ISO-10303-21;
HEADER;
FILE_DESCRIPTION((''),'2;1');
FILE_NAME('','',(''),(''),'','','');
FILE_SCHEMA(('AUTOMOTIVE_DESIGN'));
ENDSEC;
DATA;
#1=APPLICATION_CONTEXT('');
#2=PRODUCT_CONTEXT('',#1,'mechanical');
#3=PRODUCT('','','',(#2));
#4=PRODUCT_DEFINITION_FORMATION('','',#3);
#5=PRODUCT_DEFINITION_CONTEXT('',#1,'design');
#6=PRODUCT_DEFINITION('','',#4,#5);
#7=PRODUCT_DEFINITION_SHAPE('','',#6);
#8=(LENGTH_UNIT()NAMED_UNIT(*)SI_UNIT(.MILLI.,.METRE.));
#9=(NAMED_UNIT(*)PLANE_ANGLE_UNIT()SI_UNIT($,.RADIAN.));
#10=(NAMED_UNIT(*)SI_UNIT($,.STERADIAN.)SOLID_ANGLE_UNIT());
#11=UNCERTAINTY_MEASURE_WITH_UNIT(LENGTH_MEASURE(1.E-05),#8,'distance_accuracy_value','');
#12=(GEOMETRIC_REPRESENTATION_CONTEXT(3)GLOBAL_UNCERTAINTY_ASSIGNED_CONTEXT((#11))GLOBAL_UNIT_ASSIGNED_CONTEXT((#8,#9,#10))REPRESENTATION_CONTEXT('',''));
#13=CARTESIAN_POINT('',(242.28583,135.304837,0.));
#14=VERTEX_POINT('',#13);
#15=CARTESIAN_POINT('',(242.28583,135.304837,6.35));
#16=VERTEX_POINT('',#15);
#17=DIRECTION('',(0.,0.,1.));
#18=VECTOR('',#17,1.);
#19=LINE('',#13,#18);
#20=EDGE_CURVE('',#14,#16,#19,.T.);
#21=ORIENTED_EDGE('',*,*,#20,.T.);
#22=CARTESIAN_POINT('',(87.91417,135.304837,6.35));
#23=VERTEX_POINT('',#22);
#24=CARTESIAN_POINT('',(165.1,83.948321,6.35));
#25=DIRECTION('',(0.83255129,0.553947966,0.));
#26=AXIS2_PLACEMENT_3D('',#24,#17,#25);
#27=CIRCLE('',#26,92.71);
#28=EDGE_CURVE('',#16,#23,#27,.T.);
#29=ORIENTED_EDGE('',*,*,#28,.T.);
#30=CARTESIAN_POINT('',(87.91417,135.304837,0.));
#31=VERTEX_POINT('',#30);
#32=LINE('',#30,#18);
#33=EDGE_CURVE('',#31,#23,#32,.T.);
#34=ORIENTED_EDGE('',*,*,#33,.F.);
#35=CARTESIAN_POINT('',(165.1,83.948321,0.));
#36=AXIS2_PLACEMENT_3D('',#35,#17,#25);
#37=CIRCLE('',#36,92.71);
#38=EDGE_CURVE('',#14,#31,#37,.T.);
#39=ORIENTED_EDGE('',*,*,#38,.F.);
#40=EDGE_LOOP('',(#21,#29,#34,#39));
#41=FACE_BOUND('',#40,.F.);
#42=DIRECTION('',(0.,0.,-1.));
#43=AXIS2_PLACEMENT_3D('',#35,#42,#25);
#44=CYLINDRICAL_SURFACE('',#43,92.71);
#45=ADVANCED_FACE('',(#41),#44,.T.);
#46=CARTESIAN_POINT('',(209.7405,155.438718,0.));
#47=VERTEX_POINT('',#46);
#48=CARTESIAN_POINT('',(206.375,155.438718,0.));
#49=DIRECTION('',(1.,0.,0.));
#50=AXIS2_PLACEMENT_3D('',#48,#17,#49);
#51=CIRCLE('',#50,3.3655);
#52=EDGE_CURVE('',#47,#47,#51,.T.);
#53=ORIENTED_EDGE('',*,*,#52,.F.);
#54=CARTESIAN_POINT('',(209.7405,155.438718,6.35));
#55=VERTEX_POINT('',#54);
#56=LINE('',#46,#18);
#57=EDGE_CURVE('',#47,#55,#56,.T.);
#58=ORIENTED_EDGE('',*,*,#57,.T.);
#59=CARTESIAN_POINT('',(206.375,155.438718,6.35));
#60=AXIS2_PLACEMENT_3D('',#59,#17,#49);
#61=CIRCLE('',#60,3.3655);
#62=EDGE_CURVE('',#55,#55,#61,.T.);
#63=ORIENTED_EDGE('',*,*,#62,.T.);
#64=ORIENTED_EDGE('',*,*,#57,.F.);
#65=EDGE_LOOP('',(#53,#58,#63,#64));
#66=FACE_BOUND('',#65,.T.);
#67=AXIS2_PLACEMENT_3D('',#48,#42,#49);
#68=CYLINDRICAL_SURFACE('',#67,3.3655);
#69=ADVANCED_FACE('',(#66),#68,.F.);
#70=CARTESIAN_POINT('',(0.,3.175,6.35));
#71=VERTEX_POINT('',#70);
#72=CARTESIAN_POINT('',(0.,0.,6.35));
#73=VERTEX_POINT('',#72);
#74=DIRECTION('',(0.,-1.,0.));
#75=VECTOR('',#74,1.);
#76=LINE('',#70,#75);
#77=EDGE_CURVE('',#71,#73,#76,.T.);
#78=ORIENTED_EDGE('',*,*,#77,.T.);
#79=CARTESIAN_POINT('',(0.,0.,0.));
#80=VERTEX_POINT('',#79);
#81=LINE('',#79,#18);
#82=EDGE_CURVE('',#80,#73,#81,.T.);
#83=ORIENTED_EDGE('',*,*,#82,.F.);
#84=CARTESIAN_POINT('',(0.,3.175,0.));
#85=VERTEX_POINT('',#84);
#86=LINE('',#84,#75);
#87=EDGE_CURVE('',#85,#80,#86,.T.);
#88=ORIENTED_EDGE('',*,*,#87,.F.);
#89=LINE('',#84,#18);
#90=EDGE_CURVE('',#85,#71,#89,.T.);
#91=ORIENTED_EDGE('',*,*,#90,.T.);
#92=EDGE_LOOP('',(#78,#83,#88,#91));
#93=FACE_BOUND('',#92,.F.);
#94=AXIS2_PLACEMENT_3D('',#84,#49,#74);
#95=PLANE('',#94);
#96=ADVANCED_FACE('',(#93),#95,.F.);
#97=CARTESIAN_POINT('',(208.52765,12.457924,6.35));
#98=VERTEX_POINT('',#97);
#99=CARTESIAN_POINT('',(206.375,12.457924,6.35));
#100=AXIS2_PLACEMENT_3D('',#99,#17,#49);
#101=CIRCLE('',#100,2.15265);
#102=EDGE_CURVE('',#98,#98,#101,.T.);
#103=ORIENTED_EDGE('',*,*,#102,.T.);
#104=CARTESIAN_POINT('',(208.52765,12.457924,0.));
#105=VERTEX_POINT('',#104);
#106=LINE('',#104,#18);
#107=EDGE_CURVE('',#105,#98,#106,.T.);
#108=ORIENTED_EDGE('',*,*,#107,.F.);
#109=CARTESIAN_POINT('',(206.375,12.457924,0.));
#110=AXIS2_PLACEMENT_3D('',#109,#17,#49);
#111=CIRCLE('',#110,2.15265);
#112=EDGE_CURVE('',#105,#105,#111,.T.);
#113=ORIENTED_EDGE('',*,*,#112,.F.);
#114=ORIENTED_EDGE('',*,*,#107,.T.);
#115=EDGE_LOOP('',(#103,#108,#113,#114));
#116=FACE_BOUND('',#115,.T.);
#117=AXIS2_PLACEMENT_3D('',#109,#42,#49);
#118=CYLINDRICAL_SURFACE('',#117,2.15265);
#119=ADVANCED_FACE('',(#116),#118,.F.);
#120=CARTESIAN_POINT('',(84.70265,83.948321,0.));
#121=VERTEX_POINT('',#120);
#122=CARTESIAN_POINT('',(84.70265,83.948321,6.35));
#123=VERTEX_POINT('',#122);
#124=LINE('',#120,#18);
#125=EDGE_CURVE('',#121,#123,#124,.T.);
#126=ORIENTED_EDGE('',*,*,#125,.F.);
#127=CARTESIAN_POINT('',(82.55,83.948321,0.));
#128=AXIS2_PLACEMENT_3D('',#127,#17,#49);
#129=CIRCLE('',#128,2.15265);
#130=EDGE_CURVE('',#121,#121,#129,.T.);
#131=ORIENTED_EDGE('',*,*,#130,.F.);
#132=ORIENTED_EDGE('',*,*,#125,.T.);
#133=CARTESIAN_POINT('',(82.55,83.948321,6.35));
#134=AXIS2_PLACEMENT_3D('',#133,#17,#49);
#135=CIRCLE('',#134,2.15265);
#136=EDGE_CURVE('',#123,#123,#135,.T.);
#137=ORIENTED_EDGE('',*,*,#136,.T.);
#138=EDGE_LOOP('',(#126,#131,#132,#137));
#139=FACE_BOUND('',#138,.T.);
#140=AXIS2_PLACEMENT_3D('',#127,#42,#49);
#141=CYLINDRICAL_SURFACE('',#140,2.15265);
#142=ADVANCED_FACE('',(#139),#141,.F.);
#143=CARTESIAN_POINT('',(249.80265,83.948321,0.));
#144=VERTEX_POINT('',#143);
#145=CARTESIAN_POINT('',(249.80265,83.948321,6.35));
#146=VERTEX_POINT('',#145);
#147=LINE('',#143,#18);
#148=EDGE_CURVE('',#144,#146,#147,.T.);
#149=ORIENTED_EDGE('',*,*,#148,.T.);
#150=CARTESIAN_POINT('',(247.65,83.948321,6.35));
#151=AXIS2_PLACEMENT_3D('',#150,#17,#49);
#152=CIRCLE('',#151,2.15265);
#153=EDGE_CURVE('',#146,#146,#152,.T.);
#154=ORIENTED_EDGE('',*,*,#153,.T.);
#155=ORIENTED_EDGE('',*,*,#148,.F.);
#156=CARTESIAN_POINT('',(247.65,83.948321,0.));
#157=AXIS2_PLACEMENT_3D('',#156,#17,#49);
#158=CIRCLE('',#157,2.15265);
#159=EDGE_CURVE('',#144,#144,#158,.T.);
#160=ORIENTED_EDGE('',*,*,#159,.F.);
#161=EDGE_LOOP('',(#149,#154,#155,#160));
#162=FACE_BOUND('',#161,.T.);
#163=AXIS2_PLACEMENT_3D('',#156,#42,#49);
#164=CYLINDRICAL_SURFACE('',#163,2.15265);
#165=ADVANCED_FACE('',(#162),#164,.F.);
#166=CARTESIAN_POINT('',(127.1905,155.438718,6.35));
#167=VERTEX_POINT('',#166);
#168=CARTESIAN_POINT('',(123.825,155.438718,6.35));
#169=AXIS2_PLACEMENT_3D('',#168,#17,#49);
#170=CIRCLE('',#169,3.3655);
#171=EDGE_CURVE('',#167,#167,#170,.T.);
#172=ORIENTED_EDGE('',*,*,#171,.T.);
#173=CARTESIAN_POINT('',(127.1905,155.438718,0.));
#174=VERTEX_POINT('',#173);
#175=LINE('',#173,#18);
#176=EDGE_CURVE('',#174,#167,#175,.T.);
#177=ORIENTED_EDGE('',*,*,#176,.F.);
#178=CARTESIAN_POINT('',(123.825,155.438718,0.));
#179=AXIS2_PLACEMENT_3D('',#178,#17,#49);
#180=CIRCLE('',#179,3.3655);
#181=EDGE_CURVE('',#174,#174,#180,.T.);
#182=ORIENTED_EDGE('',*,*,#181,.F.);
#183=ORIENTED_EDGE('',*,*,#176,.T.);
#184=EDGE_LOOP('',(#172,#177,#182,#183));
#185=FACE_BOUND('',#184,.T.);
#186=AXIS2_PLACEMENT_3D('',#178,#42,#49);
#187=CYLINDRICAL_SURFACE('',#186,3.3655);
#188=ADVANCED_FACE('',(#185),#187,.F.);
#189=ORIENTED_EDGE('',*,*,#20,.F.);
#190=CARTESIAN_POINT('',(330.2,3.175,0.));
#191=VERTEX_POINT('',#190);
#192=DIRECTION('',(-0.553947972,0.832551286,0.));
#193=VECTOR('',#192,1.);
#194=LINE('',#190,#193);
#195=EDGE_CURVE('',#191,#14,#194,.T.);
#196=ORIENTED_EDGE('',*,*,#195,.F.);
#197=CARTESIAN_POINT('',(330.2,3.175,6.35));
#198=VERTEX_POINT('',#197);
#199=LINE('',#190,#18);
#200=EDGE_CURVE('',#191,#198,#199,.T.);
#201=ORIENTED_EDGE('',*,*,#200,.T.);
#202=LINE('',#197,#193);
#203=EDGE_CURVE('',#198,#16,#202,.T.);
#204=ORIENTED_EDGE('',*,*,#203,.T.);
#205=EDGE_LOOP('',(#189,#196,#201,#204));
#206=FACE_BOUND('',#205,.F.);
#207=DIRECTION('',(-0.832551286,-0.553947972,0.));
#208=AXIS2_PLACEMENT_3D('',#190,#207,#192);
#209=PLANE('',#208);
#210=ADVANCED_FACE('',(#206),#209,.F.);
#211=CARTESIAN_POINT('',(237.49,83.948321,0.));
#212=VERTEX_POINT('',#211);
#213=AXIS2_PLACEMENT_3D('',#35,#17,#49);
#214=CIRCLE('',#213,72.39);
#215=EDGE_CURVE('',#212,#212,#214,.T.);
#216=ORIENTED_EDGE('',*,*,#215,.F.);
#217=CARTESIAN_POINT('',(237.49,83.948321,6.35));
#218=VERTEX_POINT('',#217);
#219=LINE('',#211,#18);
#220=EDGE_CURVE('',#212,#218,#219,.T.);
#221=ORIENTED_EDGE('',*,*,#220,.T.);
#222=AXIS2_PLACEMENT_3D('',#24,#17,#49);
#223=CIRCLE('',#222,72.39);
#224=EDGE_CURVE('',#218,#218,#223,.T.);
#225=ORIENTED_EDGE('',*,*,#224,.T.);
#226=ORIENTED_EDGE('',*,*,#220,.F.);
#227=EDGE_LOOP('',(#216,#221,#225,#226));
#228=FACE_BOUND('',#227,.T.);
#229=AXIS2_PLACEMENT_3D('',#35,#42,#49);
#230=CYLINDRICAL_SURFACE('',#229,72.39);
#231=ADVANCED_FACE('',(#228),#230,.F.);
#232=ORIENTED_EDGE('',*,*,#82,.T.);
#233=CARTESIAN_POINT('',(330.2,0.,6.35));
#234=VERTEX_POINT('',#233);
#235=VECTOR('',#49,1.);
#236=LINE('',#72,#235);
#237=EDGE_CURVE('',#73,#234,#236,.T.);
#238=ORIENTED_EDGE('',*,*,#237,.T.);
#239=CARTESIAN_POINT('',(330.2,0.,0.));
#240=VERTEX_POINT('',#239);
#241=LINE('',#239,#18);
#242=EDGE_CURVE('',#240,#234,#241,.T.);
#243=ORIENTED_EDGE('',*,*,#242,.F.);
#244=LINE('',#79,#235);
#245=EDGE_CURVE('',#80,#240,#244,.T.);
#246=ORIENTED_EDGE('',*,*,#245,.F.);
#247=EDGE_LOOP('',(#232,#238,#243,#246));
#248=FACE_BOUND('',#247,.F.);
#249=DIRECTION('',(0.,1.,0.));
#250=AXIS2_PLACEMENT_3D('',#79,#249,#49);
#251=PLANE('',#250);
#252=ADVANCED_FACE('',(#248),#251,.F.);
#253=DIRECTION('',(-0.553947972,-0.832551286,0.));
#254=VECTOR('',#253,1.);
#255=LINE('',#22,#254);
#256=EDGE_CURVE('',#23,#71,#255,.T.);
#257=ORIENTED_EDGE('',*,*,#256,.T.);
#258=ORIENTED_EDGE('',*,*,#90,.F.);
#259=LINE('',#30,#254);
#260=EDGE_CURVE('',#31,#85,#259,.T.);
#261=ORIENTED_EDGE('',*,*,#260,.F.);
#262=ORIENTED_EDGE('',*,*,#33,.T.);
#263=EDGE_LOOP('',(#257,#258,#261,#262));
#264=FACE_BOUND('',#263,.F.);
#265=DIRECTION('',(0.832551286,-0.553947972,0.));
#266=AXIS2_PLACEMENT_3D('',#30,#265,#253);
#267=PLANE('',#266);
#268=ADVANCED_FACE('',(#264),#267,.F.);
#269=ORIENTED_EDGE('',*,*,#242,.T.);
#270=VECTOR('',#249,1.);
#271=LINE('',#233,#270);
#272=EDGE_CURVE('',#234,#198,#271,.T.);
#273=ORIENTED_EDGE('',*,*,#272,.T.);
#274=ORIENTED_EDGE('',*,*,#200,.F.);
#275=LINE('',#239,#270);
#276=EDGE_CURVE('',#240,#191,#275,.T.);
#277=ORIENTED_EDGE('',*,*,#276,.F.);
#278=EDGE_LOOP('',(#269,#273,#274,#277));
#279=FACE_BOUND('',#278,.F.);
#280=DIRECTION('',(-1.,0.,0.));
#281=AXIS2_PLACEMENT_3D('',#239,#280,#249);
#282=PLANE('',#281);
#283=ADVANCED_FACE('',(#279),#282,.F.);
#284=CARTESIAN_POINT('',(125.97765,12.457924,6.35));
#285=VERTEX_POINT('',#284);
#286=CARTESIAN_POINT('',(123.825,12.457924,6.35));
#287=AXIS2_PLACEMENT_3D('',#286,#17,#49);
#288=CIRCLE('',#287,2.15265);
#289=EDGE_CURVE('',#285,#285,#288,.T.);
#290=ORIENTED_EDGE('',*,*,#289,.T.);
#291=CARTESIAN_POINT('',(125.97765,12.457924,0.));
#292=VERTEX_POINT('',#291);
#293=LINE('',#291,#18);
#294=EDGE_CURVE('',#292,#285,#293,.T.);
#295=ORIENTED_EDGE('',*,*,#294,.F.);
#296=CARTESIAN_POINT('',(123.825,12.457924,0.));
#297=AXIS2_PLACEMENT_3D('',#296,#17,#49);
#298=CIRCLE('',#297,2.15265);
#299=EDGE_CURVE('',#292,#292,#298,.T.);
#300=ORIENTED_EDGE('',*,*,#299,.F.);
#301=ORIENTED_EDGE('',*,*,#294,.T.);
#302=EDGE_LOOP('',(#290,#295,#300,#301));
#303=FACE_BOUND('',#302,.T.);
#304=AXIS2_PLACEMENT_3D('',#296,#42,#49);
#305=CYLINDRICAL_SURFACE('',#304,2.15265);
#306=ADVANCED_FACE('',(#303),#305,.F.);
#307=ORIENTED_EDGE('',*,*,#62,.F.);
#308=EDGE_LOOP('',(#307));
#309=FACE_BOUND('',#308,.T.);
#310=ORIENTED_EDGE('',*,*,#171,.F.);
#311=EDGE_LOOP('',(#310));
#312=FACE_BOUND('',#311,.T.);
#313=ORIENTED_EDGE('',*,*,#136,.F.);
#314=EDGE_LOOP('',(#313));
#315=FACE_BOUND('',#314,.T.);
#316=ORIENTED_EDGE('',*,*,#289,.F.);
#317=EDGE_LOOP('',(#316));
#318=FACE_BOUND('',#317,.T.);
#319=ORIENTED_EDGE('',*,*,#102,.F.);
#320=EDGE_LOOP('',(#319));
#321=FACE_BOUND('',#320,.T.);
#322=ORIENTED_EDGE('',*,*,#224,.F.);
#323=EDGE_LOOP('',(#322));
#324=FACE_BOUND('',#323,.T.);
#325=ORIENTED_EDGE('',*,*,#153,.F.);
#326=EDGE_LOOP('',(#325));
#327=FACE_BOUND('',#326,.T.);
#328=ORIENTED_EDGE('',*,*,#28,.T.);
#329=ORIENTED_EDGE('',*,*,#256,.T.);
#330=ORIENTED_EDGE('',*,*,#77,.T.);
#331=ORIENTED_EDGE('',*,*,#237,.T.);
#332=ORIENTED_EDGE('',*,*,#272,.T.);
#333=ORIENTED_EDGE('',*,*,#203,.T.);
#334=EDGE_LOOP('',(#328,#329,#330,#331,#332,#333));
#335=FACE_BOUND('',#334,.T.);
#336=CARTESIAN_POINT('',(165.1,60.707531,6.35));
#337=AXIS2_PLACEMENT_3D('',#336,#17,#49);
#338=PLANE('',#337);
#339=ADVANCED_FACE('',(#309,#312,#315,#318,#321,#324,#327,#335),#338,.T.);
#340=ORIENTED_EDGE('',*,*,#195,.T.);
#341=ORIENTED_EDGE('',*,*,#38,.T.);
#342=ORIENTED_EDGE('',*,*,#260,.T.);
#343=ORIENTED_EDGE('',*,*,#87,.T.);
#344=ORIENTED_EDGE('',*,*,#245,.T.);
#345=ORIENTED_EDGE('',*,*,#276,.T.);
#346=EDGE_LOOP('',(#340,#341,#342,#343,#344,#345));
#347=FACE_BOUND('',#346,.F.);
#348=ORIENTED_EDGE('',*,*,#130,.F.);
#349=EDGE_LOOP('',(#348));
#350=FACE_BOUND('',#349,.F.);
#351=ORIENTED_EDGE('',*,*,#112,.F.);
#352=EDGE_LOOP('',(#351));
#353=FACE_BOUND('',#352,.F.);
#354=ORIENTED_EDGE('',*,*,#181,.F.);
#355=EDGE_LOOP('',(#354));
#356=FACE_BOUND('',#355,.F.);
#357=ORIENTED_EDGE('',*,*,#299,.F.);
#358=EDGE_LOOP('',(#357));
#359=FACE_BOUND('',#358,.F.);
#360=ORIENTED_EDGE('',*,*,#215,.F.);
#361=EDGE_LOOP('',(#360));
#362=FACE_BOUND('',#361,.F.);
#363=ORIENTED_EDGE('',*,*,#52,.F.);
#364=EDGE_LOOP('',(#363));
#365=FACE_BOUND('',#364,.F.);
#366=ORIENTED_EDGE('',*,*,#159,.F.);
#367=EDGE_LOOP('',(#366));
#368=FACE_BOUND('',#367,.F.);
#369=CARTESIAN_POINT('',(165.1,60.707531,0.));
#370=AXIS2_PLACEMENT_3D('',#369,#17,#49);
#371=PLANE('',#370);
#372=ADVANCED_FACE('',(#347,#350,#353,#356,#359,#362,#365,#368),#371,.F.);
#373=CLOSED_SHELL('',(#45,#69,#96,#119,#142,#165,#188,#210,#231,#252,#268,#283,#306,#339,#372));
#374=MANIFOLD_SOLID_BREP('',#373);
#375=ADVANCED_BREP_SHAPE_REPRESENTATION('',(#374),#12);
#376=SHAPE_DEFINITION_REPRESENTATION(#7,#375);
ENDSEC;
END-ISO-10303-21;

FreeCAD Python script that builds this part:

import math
import FreeCAD as App
import Part
import Sketcher
from FreeCAD import Vector
Q = App.Units.Quantity

doc = App.newDocument("Part")
body = doc.addObject("PartDesign::Body", "Body")

sketch1 = body.newObject("Sketcher::SketchObject", "Sketch")
sketch1.AttachmentSupport = (doc.getObject("XY_Plane"), [""])
sketch1.MapMode = "FlatFace"
sketch1.addGeometry([
    Part.LineSegment(Vector(0, 3.2, 0), Vector(0, 0, 0)),
    Part.LineSegment(Vector(0, 0, 0), Vector(330.2, 0, 0)),
    Part.LineSegment(Vector(330.2, 0, 0), Vector(330.2, 3.2, 0)),
    Part.LineSegment(Vector(330.2, 3.2, 0), Vector(242.3, 135.3, 0)),
    Part.ArcOfCircle(Part.Circle(Vector(165.1, 83.9, 0), Vector(0, 0, 1), 92.7), math.radians(34), math.radians(146)),
    Part.LineSegment(Vector(87.9, 135.3, 0), Vector(0, 3.2, 0)),
    Part.Circle(Vector(123.8, 12.5, 0), Vector(0, 0, 1), 2.2),
    Part.Circle(Vector(82.5, 83.9, 0), Vector(0, 0, 1), 2.2),
    Part.Circle(Vector(165.1, 83.9, 0), Vector(0, 0, 1), 72.4),
    Part.Circle(Vector(206.4, 12.5, 0), Vector(0, 0, 1), 2.2),
    Part.Circle(Vector(247.7, 83.9, 0), Vector(0, 0, 1), 2.2),
    Part.Circle(Vector(123.8, 155.4, 0), Vector(0, 0, 1), 3.4),
    Part.Circle(Vector(206.4, 155.4, 0), Vector(0, 0, 1), 3.4),
], False)
sketch1.addConstraint([
    Sketcher.Constraint("Coincident", 0, 2, 1, 1),
    Sketcher.Constraint("Coincident", 1, 2, 2, 1),
    Sketcher.Constraint("Coincident", 2, 2, 3, 1),
    Sketcher.Constraint("Tangent", 3, 2, 4, 1),
    Sketcher.Constraint("Tangent", 4, 2, 5, 1),
    Sketcher.Constraint("Coincident", 5, 2, 0, 1),
    Sketcher.Constraint("Vertical", 0),
    Sketcher.Constraint("Horizontal", 1),
    Sketcher.Constraint("Vertical", 2),
    Sketcher.Constraint("Coincident", 0, 2, -1, 1),
    Sketcher.Constraint("Coincident", 8, 3, 4, 3),
    Sketcher.Constraint("Equal", 6, 7),
    Sketcher.Constraint("Equal", 7, 9),
    Sketcher.Constraint("Equal", 9, 10),
    Sketcher.Constraint("Equal", 11, 12),
    Sketcher.Constraint("Horizontal", 4, 3, 7, 3),
    Sketcher.Constraint("Horizontal", 6, 3, 9, 3),
    Sketcher.Constraint("Horizontal", 8, 3, 10, 3),
    Sketcher.Constraint("Horizontal", 11, 3, 12, 3),
    Sketcher.Constraint("Horizontal", 3, 2, 4, 2),
    Sketcher.Constraint("Horizontal", 2, 2, 5, 2),
    Sketcher.Constraint("Vertical", 6, 3, 11, 3),
    Sketcher.Constraint("Vertical", 9, 3, 12, 3),
    Sketcher.Constraint("Diameter", 8, Q("5.7 in")),
    Sketcher.Constraint("DistanceX", 1, 1, 1, 2, Q("13 in")),
    Sketcher.Constraint("Radius", 4, Q("3.65 in")),
    Sketcher.Constraint("Diameter", 11, Q("0.265 in")),
    Sketcher.Constraint("Diameter", 6, Q("0.1695 in")),
    Sketcher.Constraint("DistanceX", 7, 3, 10, 3, Q("6.5 in")),
    Sketcher.Constraint("DistanceY", 0, 2, 0, 1, Q("0.125 in")),
    Sketcher.Constraint("DistanceX", -1, 1, 7, 3, Q("3.25 in")),
    Sketcher.Constraint("DistanceX", 6, 3, 9, 3, Q("3.25 in")),
    Sketcher.Constraint("DistanceX", -1, 1, 6, 3, Q("4.875 in")),
    Sketcher.Constraint("Distance", 3, Q("158.704742 mm")),
    Sketcher.Constraint("DistanceY", -1, 1, 11, 3, Q("155.438718 mm")),
    Sketcher.Constraint("DistanceY", -1, 1, 6, 3, Q("12.457924 mm")),
])
pad1 = body.newObject("PartDesign::Pad", "Pad")
pad1.Profile = sketch1
pad1.Length = Q("0.25 in")

doc.recompute()
